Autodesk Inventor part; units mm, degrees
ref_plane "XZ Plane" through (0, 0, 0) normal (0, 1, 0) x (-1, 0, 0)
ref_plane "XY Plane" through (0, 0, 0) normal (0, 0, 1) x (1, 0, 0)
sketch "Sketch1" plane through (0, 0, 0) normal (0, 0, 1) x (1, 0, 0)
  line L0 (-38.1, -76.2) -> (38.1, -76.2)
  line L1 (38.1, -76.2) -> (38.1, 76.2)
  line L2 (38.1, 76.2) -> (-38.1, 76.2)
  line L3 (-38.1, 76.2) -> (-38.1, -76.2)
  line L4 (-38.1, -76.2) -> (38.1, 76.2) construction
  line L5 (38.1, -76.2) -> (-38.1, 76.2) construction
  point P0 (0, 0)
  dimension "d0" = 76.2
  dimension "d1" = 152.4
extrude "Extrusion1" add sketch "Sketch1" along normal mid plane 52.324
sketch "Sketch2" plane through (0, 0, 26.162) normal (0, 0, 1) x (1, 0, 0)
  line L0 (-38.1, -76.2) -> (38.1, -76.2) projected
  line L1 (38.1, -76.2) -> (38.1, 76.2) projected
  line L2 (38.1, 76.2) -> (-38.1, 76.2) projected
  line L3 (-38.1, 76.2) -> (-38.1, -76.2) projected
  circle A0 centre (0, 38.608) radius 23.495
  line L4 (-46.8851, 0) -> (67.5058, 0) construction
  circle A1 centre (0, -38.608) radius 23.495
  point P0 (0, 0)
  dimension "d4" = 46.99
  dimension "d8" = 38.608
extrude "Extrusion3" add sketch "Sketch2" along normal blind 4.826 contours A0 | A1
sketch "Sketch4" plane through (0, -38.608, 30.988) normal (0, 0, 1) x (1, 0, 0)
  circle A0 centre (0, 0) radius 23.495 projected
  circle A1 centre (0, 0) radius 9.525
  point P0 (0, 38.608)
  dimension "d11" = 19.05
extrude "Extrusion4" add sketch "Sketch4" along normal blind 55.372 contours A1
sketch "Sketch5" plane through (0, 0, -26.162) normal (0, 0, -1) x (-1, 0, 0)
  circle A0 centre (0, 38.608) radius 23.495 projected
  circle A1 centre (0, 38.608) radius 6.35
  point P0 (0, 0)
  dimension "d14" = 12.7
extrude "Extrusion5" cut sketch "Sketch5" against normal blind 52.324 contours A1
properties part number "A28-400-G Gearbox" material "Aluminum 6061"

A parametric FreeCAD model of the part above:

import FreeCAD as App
import Part
import Sketcher
Q = App.Units.Quantity

doc = App.newDocument("Part")
body = doc.addObject("PartDesign::Body", "Body")

# Sketch on XY plane
sketch1 = body.newObject("Sketcher::SketchObject", "Sketch")
sketch1.AttachmentSupport = (doc.getObject("XY_Plane"), [""])
sketch1.MapMode = "FlatFace"
sketch1.addGeometry([
    Part.LineSegment(App.Vector(-38, 76, 0), App.Vector(-38, -76, 0)),
    Part.LineSegment(App.Vector(-38, -76, 0), App.Vector(38, -76, 0)),
    Part.LineSegment(App.Vector(38, -76, 0), App.Vector(38, 76, 0)),
    Part.LineSegment(App.Vector(38, 76, 0), App.Vector(-38, 76, 0)),
], False)
sketch1.addConstraint([
    Sketcher.Constraint("Coincident", 0, 2, 1, 1),
    Sketcher.Constraint("Coincident", 1, 2, 2, 1),
    Sketcher.Constraint("Coincident", 2, 2, 3, 1),
    Sketcher.Constraint("Coincident", 3, 2, 0, 1),
    Sketcher.Constraint("Vertical", 0),
    Sketcher.Constraint("Horizontal", 1),
    Sketcher.Constraint("Vertical", 2),
    Sketcher.Constraint("Horizontal", 3),
    Sketcher.Constraint("Symmetric", 0, 2, 2, 2, -1, 1),
    Sketcher.Constraint("DistanceX", 1, 1, 1, 2, Q("3 in")),
    Sketcher.Constraint("DistanceY", 0, 2, 0, 1, Q("6 in")),
])
pad1 = body.newObject("PartDesign::Pad", "Pad")
pad1.Profile = sketch1
pad1.Length = Q("2.06 in")
pad1.Midplane = True

# Sketch on XY plane
sketch2 = body.newObject("Sketcher::SketchObject", "Sketch001")
sketch2.AttachmentSupport = (doc.getObject("XY_Plane"), [""])
sketch2.MapMode = "FlatFace"
sketch2.AttachmentOffset = App.Placement(App.Vector(0, 0, 1.03 * 25.4), App.Rotation())
sketch2.addGeometry([
    Part.Circle(App.Vector(0, 39, 0), App.Vector(0, 0, 1), 23),
    Part.Circle(App.Vector(0, -39, 0), App.Vector(0, 0, 1), 23),
], False)
sketch2.addConstraint([
    Sketcher.Constraint("Equal", 0, 1),
    Sketcher.Constraint("Symmetric", 0, 3, 1, 3, -1, 1),
    Sketcher.Constraint("PointOnObject", 0, 3, -2),
    Sketcher.Constraint("Diameter", 0, Q("1.85 in")),
    Sketcher.Constraint("DistanceY", -1, 1, 0, 3, Q("1.52 in")),
])
pad2 = body.newObject("PartDesign::Pad", "Pad001")
pad2.Profile = sketch2
pad2.Length = Q("0.19 in")

# Sketch on XY plane
sketch3 = body.newObject("Sketcher::SketchObject", "Sketch002")
sketch3.AttachmentSupport = (doc.getObject("XY_Plane"), [""])
sketch3.MapMode = "FlatFace"
sketch3.AttachmentOffset = App.Placement(App.Vector(0, 0, 1.22 * 25.4), App.Rotation())
sketch3.addGeometry(Part.Circle(App.Vector(0, -39, 0), App.Vector(0, 0, 1), 10), False)
sketch3.addConstraint([
    Sketcher.Constraint("PointOnObject", 0, 3, -2),
    Sketcher.Constraint("Diameter", 0, Q("0.75 in")),
    Sketcher.Constraint("DistanceY", 0, 3, -1, 1, Q("1.52 in")),
])
pad3 = body.newObject("PartDesign::Pad", "Pad002")
pad3.Profile = sketch3
pad3.Length = Q("2.18 in")

# Sketch on XY plane
sketch4 = body.newObject("Sketcher::SketchObject", "Sketch003")
sketch4.AttachmentSupport = (doc.getObject("XY_Plane"), [""])
sketch4.MapMode = "FlatFace"
sketch4.AttachmentOffset = App.Placement(App.Vector(0, 0, -1.03 * 25.4), App.Rotation())
sketch4.addGeometry(Part.Circle(App.Vector(0, 39, 0), App.Vector(0, 0, 1), 6), False)
sketch4.addConstraint([
    Sketcher.Constraint("PointOnObject", 0, 3, -2),
    Sketcher.Constraint("Diameter", 0, Q("0.5 in")),
    Sketcher.Constraint("DistanceY", -1, 1, 0, 3, Q("1.52 in")),
])
pocket1 = body.newObject("PartDesign::Pocket", "Pocket")
pocket1.Profile = sketch4
pocket1.Length = Q("2.06 in")
pocket1.Reversed = True

doc.recompute()
